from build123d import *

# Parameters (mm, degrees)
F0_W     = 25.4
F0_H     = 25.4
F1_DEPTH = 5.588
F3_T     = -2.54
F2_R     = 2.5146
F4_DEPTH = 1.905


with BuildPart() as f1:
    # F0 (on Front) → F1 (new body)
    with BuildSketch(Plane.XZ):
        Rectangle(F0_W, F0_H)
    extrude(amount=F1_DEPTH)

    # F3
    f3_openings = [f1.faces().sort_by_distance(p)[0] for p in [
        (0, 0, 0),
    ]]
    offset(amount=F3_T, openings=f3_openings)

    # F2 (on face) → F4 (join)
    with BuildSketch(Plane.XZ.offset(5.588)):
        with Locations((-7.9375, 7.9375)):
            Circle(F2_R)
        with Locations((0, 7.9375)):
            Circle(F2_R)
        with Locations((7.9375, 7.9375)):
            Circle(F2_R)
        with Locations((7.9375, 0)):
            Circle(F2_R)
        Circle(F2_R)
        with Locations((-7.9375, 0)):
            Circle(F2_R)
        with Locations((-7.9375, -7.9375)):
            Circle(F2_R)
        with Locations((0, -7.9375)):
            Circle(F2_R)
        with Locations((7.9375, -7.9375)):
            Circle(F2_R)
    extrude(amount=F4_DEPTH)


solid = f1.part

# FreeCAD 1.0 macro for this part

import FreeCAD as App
import Part
import Sketcher
Q = App.Units.Quantity


def faces_at(feature, points):
    """Names of the faces that lie closest to the given points."""
    faces = feature.Shape.Faces
    near = lambda p: min(range(len(faces)), key=lambda i: faces[i].distToShape(Part.Vertex(*p))[0])
    return sorted({f"Face{near(p) + 1}" for p in points})

doc = App.newDocument("Part")
body = doc.addObject("PartDesign::Body", "Body")

# Sketch on XZ plane
sketch1 = body.newObject("Sketcher::SketchObject", "Sketch")
sketch1.AttachmentSupport = (doc.getObject("XZ_Plane"), [""])
sketch1.MapMode = "FlatFace"
sketch1.addGeometry([
    Part.LineSegment(App.Vector(-13, 13, 0), App.Vector(-13, -13, 0)),
    Part.LineSegment(App.Vector(-13, -13, 0), App.Vector(13, -13, 0)),
    Part.LineSegment(App.Vector(13, -13, 0), App.Vector(13, 13, 0)),
    Part.LineSegment(App.Vector(13, 13, 0), App.Vector(-13, 13, 0)),
], False)
sketch1.addConstraint([
    Sketcher.Constraint("Coincident", 0, 2, 1, 1),
    Sketcher.Constraint("Coincident", 1, 2, 2, 1),
    Sketcher.Constraint("Coincident", 2, 2, 3, 1),
    Sketcher.Constraint("Coincident", 3, 2, 0, 1),
    Sketcher.Constraint("Vertical", 0),
    Sketcher.Constraint("Horizontal", 1),
    Sketcher.Constraint("Vertical", 2),
    Sketcher.Constraint("Horizontal", 3),
    Sketcher.Constraint("Symmetric", 0, 2, 2, 2, -1, 1),
    Sketcher.Constraint("Equal", 3, 0),
    Sketcher.Constraint("DistanceX", 1, 1, 1, 2, Q("1 in")),
])
pad1 = body.newObject("PartDesign::Pad", "Pad")
pad1.Profile = sketch1
pad1.Length = Q("0.22 in")
doc.recompute()

thickness = body.newObject("PartDesign::Thickness", "Thickness")
thickness.Base = (pad1, faces_at(pad1, [(0, 0, 0)]))
thickness.Value = Q("0.1 in")
thickness.Reversed = True
thickness.Join = "Arc"

# Sketch on XZ plane
sketch2 = body.newObject("Sketcher::SketchObject", "Sketch001")
sketch2.AttachmentSupport = (doc.getObject("XZ_Plane"), [""])
sketch2.MapMode = "FlatFace"
sketch2.AttachmentOffset = App.Placement(App.Vector(0, 0, 0.22 * 25.4), App.Rotation())
sketch2.addGeometry([
    Part.Circle(App.Vector(-7.9, 7.9, 0), App.Vector(0, 0, 1), 2.5),  # 0
    Part.Circle(App.Vector(0, 7.9, 0), App.Vector(0, 0, 1), 2.5),  # 1
    Part.Circle(App.Vector(7.9, 7.9, 0), App.Vector(0, 0, 1), 2.5),  # 2
    Part.Circle(App.Vector(7.9, 0, 0), App.Vector(0, 0, 1), 2.5),  # 3
    Part.Circle(App.Vector(0, 0, 0), App.Vector(0, 0, 1), 2.5),  # 4
    Part.Circle(App.Vector(-7.9, 0, 0), App.Vector(0, 0, 1), 2.5),  # 5
    Part.Circle(App.Vector(-7.9, -7.9, 0), App.Vector(0, 0, 1), 2.5),  # 6
    Part.Circle(App.Vector(0, -7.9, 0), App.Vector(0, 0, 1), 2.5),  # 7
    Part.Circle(App.Vector(7.9, -7.9, 0), App.Vector(0, 0, 1), 2.5),  # 8
], False)
sketch2.addConstraint([
    Sketcher.Constraint("Coincident", 4, 3, -1, 1),
    Sketcher.Constraint("Equal", 0, 1),
    Sketcher.Constraint("Equal", 1, 2),
    Sketcher.Constraint("Equal", 2, 3),
    Sketcher.Constraint("Equal", 3, 4),
    Sketcher.Constraint("Equal", 4, 5),
    Sketcher.Constraint("Equal", 5, 6),
    Sketcher.Constraint("Equal", 6, 7),
    Sketcher.Constraint("Equal", 7, 8),
    Sketcher.Constraint("Symmetric", 3, 3, 5, 3, -1, 1),
    Sketcher.Constraint("Symmetric", 2, 3, 6, 3, -1, 1),
    Sketcher.Constraint("Symmetric", 1, 3, 7, 3, -1, 1),
    Sketcher.Constraint("Symmetric", 0, 3, 8, 3, -1, 1),
    Sketcher.Constraint("Symmetric", 0, 3, 2, 3, -2),
    Sketcher.Constraint("PointOnObject", 1, 3, -2),
    Sketcher.Constraint("PointOnObject", 3, 3, -1),
    Sketcher.Constraint("Horizontal", 0, 3, 1, 3),
    Sketcher.Constraint("Vertical", 2, 3, 3, 3),
    Sketcher.Constraint("Diameter", 0, Q("0.198 in")),
    Sketcher.Constraint("DistanceX", 0, 3, -1, 1, Q("0.3125 in")),
    Sketcher.Constraint("DistanceY", -1, 1, 0, 3, Q("0.3125 in")),
])
pad2 = body.newObject("PartDesign::Pad", "Pad001")
pad2.Profile = sketch2
pad2.Length = Q("0.075 in")

doc.recompute()
